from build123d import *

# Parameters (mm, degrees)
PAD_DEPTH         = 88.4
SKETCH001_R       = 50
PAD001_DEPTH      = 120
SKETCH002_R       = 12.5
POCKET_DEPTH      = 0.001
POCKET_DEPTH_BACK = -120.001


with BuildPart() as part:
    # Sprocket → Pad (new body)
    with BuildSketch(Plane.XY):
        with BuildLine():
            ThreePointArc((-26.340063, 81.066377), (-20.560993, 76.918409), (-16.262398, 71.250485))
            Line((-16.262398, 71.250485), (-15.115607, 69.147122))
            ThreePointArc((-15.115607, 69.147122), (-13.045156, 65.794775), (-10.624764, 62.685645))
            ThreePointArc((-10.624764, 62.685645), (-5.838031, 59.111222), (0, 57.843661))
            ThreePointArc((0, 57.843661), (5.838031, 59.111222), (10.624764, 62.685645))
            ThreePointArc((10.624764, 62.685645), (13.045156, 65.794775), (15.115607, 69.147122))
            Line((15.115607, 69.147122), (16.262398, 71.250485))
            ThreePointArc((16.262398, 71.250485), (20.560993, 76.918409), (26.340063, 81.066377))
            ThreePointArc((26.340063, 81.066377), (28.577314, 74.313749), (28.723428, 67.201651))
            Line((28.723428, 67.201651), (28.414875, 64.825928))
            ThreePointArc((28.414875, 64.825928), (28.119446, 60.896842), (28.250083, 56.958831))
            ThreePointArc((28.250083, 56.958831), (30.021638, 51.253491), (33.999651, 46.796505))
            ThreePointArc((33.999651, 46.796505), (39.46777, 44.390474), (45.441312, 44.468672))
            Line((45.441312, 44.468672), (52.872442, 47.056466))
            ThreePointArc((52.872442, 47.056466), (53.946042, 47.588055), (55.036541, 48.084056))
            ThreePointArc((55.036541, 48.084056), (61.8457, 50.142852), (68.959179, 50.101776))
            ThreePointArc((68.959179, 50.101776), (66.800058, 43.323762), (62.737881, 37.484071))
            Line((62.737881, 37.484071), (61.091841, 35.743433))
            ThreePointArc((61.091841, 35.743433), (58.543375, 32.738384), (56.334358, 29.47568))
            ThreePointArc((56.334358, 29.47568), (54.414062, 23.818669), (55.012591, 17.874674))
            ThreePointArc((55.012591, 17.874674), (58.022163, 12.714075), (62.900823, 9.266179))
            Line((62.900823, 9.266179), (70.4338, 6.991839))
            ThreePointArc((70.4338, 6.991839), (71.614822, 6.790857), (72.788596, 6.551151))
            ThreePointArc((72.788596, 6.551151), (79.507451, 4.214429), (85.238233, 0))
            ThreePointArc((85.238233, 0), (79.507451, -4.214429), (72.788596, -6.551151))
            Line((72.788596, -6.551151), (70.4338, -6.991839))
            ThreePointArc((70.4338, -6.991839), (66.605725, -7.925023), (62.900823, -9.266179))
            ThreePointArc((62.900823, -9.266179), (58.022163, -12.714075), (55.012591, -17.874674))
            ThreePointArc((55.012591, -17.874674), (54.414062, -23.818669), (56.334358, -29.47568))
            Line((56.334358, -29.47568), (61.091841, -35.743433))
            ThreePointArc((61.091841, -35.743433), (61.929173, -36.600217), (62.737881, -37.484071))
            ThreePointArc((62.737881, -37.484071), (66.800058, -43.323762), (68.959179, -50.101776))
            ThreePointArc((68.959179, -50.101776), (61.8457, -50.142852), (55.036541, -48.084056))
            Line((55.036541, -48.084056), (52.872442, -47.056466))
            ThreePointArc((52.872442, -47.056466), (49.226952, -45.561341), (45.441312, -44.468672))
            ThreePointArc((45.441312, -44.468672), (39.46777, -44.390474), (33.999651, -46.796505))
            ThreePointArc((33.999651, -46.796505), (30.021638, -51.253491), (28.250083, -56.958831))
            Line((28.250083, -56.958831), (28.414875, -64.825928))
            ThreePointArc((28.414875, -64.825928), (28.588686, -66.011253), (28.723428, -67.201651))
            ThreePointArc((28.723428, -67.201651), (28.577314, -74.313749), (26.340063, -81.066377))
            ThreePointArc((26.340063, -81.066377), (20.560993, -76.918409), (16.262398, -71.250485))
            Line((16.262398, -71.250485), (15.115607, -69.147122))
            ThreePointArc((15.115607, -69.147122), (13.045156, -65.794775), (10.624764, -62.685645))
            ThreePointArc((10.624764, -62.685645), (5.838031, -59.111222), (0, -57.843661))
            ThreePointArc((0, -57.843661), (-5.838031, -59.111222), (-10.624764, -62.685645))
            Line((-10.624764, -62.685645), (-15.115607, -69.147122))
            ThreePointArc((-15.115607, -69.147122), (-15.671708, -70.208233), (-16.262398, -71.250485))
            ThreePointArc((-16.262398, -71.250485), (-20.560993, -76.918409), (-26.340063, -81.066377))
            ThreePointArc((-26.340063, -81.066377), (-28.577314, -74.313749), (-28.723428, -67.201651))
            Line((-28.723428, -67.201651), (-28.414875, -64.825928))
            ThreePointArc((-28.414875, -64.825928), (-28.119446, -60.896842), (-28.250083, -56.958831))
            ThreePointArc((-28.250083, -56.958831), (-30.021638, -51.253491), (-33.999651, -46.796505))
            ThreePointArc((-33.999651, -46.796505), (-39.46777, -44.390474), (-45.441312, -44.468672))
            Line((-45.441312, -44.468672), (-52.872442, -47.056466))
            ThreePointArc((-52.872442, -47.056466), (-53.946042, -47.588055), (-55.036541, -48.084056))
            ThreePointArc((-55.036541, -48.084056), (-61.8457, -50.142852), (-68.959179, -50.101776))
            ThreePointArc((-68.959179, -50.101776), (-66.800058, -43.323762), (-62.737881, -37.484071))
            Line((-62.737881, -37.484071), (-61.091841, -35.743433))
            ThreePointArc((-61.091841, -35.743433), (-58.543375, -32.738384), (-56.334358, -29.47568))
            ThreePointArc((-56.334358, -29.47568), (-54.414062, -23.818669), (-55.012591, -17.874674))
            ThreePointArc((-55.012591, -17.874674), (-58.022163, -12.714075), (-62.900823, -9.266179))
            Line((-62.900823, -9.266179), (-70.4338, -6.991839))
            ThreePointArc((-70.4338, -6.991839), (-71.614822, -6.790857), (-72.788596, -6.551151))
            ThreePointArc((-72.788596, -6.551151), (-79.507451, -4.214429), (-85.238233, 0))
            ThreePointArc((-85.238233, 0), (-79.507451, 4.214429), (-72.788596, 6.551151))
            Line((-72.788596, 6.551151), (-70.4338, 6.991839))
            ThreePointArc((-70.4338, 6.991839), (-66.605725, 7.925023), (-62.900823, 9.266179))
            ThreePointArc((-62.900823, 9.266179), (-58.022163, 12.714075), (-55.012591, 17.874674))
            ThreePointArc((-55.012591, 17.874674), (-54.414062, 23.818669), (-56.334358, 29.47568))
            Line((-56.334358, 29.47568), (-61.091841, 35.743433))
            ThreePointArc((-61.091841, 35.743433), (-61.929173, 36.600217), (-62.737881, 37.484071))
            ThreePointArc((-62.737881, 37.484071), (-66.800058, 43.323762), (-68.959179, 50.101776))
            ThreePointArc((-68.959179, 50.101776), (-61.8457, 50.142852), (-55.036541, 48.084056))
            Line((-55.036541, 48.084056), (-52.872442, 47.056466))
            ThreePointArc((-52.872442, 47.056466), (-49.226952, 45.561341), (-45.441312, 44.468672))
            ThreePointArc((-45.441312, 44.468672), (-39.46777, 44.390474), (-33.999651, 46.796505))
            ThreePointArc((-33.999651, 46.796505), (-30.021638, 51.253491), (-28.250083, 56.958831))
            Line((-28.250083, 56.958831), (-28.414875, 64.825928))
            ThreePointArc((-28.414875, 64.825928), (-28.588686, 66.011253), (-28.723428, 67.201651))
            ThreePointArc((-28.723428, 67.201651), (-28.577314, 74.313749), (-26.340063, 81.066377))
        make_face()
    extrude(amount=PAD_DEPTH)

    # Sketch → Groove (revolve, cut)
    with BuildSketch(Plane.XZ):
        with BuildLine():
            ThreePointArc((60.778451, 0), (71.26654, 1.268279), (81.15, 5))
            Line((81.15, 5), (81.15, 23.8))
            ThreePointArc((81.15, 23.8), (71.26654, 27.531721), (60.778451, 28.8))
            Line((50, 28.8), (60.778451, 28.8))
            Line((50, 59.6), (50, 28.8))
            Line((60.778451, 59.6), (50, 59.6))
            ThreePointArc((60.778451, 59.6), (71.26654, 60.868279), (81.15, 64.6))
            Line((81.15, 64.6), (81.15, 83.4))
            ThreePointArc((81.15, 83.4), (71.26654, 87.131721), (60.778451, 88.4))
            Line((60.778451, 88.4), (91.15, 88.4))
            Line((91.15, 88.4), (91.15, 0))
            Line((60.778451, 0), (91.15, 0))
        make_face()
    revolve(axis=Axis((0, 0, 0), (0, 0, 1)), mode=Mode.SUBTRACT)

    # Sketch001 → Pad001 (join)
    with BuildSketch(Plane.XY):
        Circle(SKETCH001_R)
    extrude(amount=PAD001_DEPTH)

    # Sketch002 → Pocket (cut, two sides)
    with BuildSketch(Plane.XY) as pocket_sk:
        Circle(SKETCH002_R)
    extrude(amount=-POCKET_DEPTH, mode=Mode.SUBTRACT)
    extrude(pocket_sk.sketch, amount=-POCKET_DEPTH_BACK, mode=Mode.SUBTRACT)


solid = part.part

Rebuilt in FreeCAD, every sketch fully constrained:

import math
import FreeCAD as App
import Part
import Sketcher
Q = App.Units.Quantity

doc = App.newDocument("Part")
body = doc.addObject("PartDesign::Body", "Body")

sketch1 = doc.addObject("Sketcher::SketchObject", "Sketch")
body.addObject(sketch1)
sketch1.AttachmentSupport = (doc.XY_Plane, [""])
sketch1.MapMode = "FlatFace"
sketch1.addGeometry([
    Part.ArcOfCircle(Part.Circle(App.Vector(-37.201525, 59.834103, 0), App.Vector(0, 0, 1), 23.849126), math.radians(28.599999), math.radians(62.907788)),
    Part.ArcOfCircle(Part.Circle(App.Vector(-5.072939, 70.273315, 0), App.Vector(0, 0, 1), 23.849124), math.radians(153.092214), math.radians(187.400005)),
    Part.ArcOfCircle(Part.Circle(App.Vector(7.537194, 70.703192, 0), App.Vector(0, 0, 1), 36.429294), math.radians(-174.484282), math.radians(-170.715697)),
    Part.LineSegment(App.Vector(-28.414875, 64.825928, 0), App.Vector(-28.250083, 56.958831, 0)),
    Part.ArcOfCircle(Part.Circle(App.Vector(-42.274458, 58.185803, 0), App.Vector(0, 0, 1), 14.077945), math.radians(-54.00001), math.radians(-4.999995)),
    Part.ArcOfCircle(Part.Circle(App.Vector(-42.274462, 58.1858, 0), App.Vector(0, 0, 1), 14.077945), math.radians(-103.000006), math.radians(-53.999987)),
    Part.ArcOfCircle(Part.Circle(App.Vector(-37.246364, 79.964894, 0), App.Vector(0, 0, 1), 36.429919), math.radians(-115.400011), math.radians(-102.999999)),
    Part.LineSegment(App.Vector(-52.872442, 47.056466, 0), App.Vector(-55.036541, 48.084056, 0)),
    Part.ArcOfCircle(Part.Circle(App.Vector(-65.266268, 26.540303, 0), App.Vector(0, 0, 1), 23.849122), math.radians(64.599998), math.radians(98.907792)),
    Part.ArcOfCircle(Part.Circle(App.Vector(-45.409714, 53.870506, 0), App.Vector(0, 0, 1), 23.849122), math.radians(-170.907788), math.radians(-136.599996)),
    Part.ArcOfCircle(Part.Circle(App.Vector(-35.460525, 61.630381, 0), App.Vector(0, 0, 1), 36.429362), math.radians(-138.484281), math.radians(-134.715702)),
    Part.LineSegment(App.Vector(-61.091841, 35.743433, 0), App.Vector(-56.334358, 29.47568, 0)),
    Part.ArcOfCircle(Part.Circle(App.Vector(-68.401518, 22.225, 0), App.Vector(0, 0, 1), 14.077951), math.radians(-18.000001), math.radians(30.999994)),
    Part.ArcOfCircle(Part.Circle(App.Vector(-68.401515, 22.224998, 0), App.Vector(0, 0, 1), 14.077947), math.radians(-67.000002), math.radians(-17.999996)),
    Part.ArcOfCircle(Part.Circle(App.Vector(-77.135132, 42.800102, 0), App.Vector(0, 0, 1), 36.429927), math.radians(-79.400003), math.radians(-66.999995)),
    Part.LineSegment(App.Vector(-70.4338, 6.991839, 0), App.Vector(-72.788596, 6.551151, 0)),
    Part.ArcOfCircle(Part.Circle(App.Vector(-68.401518, -16.890997, 0), App.Vector(0, 0, 1), 23.849125), math.radians(100.599998), math.radians(134.907788)),
    Part.ArcOfCircle(Part.Circle(App.Vector(-68.401518, 16.890997, 0), App.Vector(0, 0, 1), 23.849125), math.radians(-134.907788), math.radians(-100.599998)),
    Part.ArcOfCircle(Part.Circle(App.Vector(-64.913511, 29.017284, 0), App.Vector(0, 0, 1), 36.429803), math.radians(-102.484265), math.radians(-98.715731)),
    Part.LineSegment(App.Vector(-70.4338, -6.991839, 0), App.Vector(-62.900823, -9.266179, 0)),
    Part.ArcOfCircle(Part.Circle(App.Vector(-68.401515, -22.224998, 0), App.Vector(0, 0, 1), 14.077947), math.radians(17.999996), math.radians(67.000002)),
    Part.ArcOfCircle(Part.Circle(App.Vector(-68.401518, -22.225, 0), App.Vector(0, 0, 1), 14.077951), math.radians(-30.999994), math.radians(18.000001)),
    Part.ArcOfCircle(Part.Circle(App.Vector(-87.560987, -10.71282, 0), App.Vector(0, 0, 1), 36.430032), math.radians(-43.399984), math.radians(-31.000011)),
    Part.LineSegment(App.Vector(-61.091841, -35.743433, 0), App.Vector(-62.737881, -37.484071, 0)),
    Part.ArcOfCircle(Part.Circle(App.Vector(-45.409714, -53.870506, 0), App.Vector(0, 0, 1), 23.849122), math.radians(136.599996), math.radians(170.907788)),
    Part.ArcOfCircle(Part.Circle(App.Vector(-65.266268, -26.540303, 0), App.Vector(0, 0, 1), 23.849122), math.radians(-98.907792), math.radians(-64.599998)),
    Part.ArcOfCircle(Part.Circle(App.Vector(-69.572054, -14.679758, 0), App.Vector(0, 0, 1), 36.429771), math.radians(-66.484263), math.radians(-62.715727)),
    Part.LineSegment(App.Vector(-52.872442, -47.056466, 0), App.Vector(-45.441312, -44.468672, 0)),
    Part.ArcOfCircle(Part.Circle(App.Vector(-42.274462, -58.1858, 0), App.Vector(0, 0, 1), 14.077945), math.radians(53.999987), math.radians(103.000006)),
    Part.ArcOfCircle(Part.Circle(App.Vector(-42.274458, -58.185803, 0), App.Vector(0, 0, 1), 14.077945), math.radians(4.999995), math.radians(54.00001)),
    Part.ArcOfCircle(Part.Circle(App.Vector(-64.541471, -60.13391, 0), App.Vector(0, 0, 1), 36.430015), math.radians(-7.399988), math.radians(4.999991)),
    Part.LineSegment(App.Vector(-28.414875, -64.825928, 0), App.Vector(-28.723428, -67.201651, 0)),
    Part.ArcOfCircle(Part.Circle(App.Vector(-5.072939, -70.273315, 0), App.Vector(0, 0, 1), 23.849124), math.radians(172.599995), math.radians(206.907786)),
    Part.ArcOfCircle(Part.Circle(App.Vector(-37.201525, -59.834103, 0), App.Vector(0, 0, 1), 23.849126), math.radians(-62.907788), math.radians(-28.599999)),
    Part.ArcOfCircle(Part.Circle(App.Vector(-47.656642, -52.769477, 0), App.Vector(0, 0, 1), 36.430018), math.radians(-30.484261), math.radians(-26.71575)),
    Part.LineSegment(App.Vector(-15.115607, -69.147122, 0), App.Vector(-10.624764, -62.685645, 0)),
    Part.ArcOfCircle(Part.Circle(App.Vector(0.000001, -71.921613, 0), App.Vector(0, 0, 1), 14.077952), math.radians(90.000003), math.radians(138.999998)),
    Part.ArcOfCircle(Part.Circle(App.Vector(-0.000001, -71.921613, 0), App.Vector(0, 0, 1), 14.077952), math.radians(41.000002), math.radians(89.999997)),
    Part.ArcOfCircle(Part.Circle(App.Vector(-16.869207, -86.585798, 0), App.Vector(0, 0, 1), 36.429874), math.radians(28.599984), math.radians(41.00001)),
    Part.LineSegment(App.Vector(15.115607, -69.147122, 0), App.Vector(16.262398, -71.250485, 0)),
    Part.ArcOfCircle(Part.Circle(App.Vector(37.201525, -59.834103, 0), App.Vector(0, 0, 1), 23.849126), math.radians(-151.400001), math.radians(-117.092212)),
    Part.ArcOfCircle(Part.Circle(App.Vector(5.072939, -70.273315, 0), App.Vector(0, 0, 1), 23.849124), math.radians(-26.907786), math.radians(7.400005)),
    Part.ArcOfCircle(Part.Circle(App.Vector(-7.537194, -70.703192, 0), App.Vector(0, 0, 1), 36.429294), math.radians(5.515718), math.radians(9.284303)),
    Part.LineSegment(App.Vector(28.414875, -64.825928, 0), App.Vector(28.250083, -56.958831, 0)),
    Part.ArcOfCircle(Part.Circle(App.Vector(42.274458, -58.185803, 0), App.Vector(0, 0, 1), 14.077945), math.radians(125.99999), math.radians(175.000005)),
    Part.ArcOfCircle(Part.Circle(App.Vector(42.274462, -58.1858, 0), App.Vector(0, 0, 1), 14.077945), math.radians(76.999994), math.radians(126.000013)),
    Part.ArcOfCircle(Part.Circle(App.Vector(37.246364, -79.964894, 0), App.Vector(0, 0, 1), 36.429919), math.radians(64.599989), math.radians(77.000001)),
    Part.LineSegment(App.Vector(52.872442, -47.056466, 0), App.Vector(55.036541, -48.084056, 0)),
    Part.ArcOfCircle(Part.Circle(App.Vector(65.266268, -26.540303, 0), App.Vector(0, 0, 1), 23.849122), math.radians(-115.400002), math.radians(-81.092208)),
    Part.ArcOfCircle(Part.Circle(App.Vector(45.409714, -53.870506, 0), App.Vector(0, 0, 1), 23.849122), math.radians(9.092212), math.radians(43.400004)),
    Part.ArcOfCircle(Part.Circle(App.Vector(35.460525, -61.630381, 0), App.Vector(0, 0, 1), 36.429362), math.radians(41.515719), math.radians(45.284298)),
    Part.LineSegment(App.Vector(61.091841, -35.743433, 0), App.Vector(56.334358, -29.47568, 0)),
    Part.ArcOfCircle(Part.Circle(App.Vector(68.401518, -22.225, 0), App.Vector(0, 0, 1), 14.077951), math.radians(161.999999), math.radians(210.999994)),
    Part.ArcOfCircle(Part.Circle(App.Vector(68.401515, -22.224998, 0), App.Vector(0, 0, 1), 14.077947), math.radians(112.999998), math.radians(162.000004)),
    Part.ArcOfCircle(Part.Circle(App.Vector(77.135132, -42.800102, 0), App.Vector(0, 0, 1), 36.429927), math.radians(100.599997), math.radians(113.000005)),
    Part.LineSegment(App.Vector(70.4338, -6.991839, 0), App.Vector(72.788596, -6.551151, 0)),
    Part.ArcOfCircle(Part.Circle(App.Vector(68.401518, 16.890997, 0), App.Vector(0, 0, 1), 23.849125), math.radians(-79.400002), math.radians(-45.092212)),
    Part.ArcOfCircle(Part.Circle(App.Vector(68.401518, -16.890997, 0), App.Vector(0, 0, 1), 23.849125), math.radians(45.092212), math.radians(79.400002)),
    Part.ArcOfCircle(Part.Circle(App.Vector(64.913511, -29.017284, 0), App.Vector(0, 0, 1), 36.429803), math.radians(77.515735), math.radians(81.284269)),
    Part.LineSegment(App.Vector(70.4338, 6.991839, 0), App.Vector(62.900823, 9.266179, 0)),
    Part.ArcOfCircle(Part.Circle(App.Vector(68.401515, 22.224998, 0), App.Vector(0, 0, 1), 14.077947), math.radians(-162.000004), math.radians(-112.999998)),
    Part.ArcOfCircle(Part.Circle(App.Vector(68.401518, 22.225, 0), App.Vector(0, 0, 1), 14.077951), math.radians(149.000006), math.radians(198.000001)),
    Part.ArcOfCircle(Part.Circle(App.Vector(87.560987, 10.71282, 0), App.Vector(0, 0, 1), 36.430032), math.radians(136.600016), math.radians(148.999989)),
    Part.LineSegment(App.Vector(61.091841, 35.743433, 0), App.Vector(62.737881, 37.484071, 0)),
    Part.ArcOfCircle(Part.Circle(App.Vector(45.409714, 53.870506, 0), App.Vector(0, 0, 1), 23.849122), math.radians(-43.400004), math.radians(-9.092212)),
    Part.ArcOfCircle(Part.Circle(App.Vector(65.266268, 26.540303, 0), App.Vector(0, 0, 1), 23.849122), math.radians(81.092208), math.radians(115.400002)),
    Part.ArcOfCircle(Part.Circle(App.Vector(69.572054, 14.679758, 0), App.Vector(0, 0, 1), 36.429771), math.radians(113.515737), math.radians(117.284273)),
    Part.LineSegment(App.Vector(52.872442, 47.056466, 0), App.Vector(45.441312, 44.468672, 0)),
    Part.ArcOfCircle(Part.Circle(App.Vector(42.274462, 58.1858, 0), App.Vector(0, 0, 1), 14.077945), math.radians(-126.000013), math.radians(-76.999994)),
    Part.ArcOfCircle(Part.Circle(App.Vector(42.274458, 58.185803, 0), App.Vector(0, 0, 1), 14.077945), math.radians(-175.000005), math.radians(-125.99999)),
    Part.ArcOfCircle(Part.Circle(App.Vector(64.541471, 60.13391, 0), App.Vector(0, 0, 1), 36.430015), math.radians(172.600012), math.radians(184.999991)),
    Part.LineSegment(App.Vector(28.414875, 64.825928, 0), App.Vector(28.723428, 67.201651, 0)),
    Part.ArcOfCircle(Part.Circle(App.Vector(5.072939, 70.273315, 0), App.Vector(0, 0, 1), 23.849124), math.radians(-7.400005), math.radians(26.907786)),
    Part.ArcOfCircle(Part.Circle(App.Vector(37.201525, 59.834103, 0), App.Vector(0, 0, 1), 23.849126), math.radians(117.092212), math.radians(151.400001)),
    Part.LineSegment(App.Vector(16.262398, 71.250485, 0), App.Vector(15.115607, 69.147122, 0)),
    Part.ArcOfCircle(Part.Circle(App.Vector(-16.869207, 86.585798, 0), App.Vector(0, 0, 1), 36.429874), math.radians(-41.00001), math.radians(-28.599984)),
    Part.ArcOfCircle(Part.Circle(App.Vector(-0.000001, 71.921613, 0), App.Vector(0, 0, 1), 14.077952), math.radians(-89.999997), math.radians(-41.000002)),
    Part.ArcOfCircle(Part.Circle(App.Vector(0.000001, 71.921613, 0), App.Vector(0, 0, 1), 14.077952), math.radians(-138.999998), math.radians(-90.000003)),
    Part.ArcOfCircle(Part.Circle(App.Vector(16.869207, 86.585798, 0), App.Vector(0, 0, 1), 36.429874), math.radians(-151.400016), math.radians(-138.99999)),
    Part.LineSegment(App.Vector(-15.115607, 69.147122, 0), App.Vector(-16.262398, 71.250485, 0)),
], False)
sketch1.addConstraint([
    Sketcher.Constraint("Coincident", 0, 2, 1, 1),
    Sketcher.Constraint("Coincident", 1, 2, 2, 1),
    Sketcher.Constraint("Coincident", 2, 2, 3, 1),
    Sketcher.Constraint("Coincident", 3, 2, 4, 2),
    Sketcher.Constraint("Coincident", 4, 1, 5, 2),
    Sketcher.Constraint("Coincident", 5, 1, 6, 2),
    Sketcher.Constraint("Coincident", 6, 1, 7, 1),
    Sketcher.Constraint("Coincident", 7, 2, 8, 1),
    Sketcher.Constraint("Coincident", 8, 2, 9, 1),
    Sketcher.Constraint("Coincident", 9, 2, 10, 1),
    Sketcher.Constraint("Coincident", 10, 2, 11, 1),
    Sketcher.Constraint("Coincident", 11, 2, 12, 2),
    Sketcher.Constraint("Coincident", 12, 1, 13, 2),
    Sketcher.Constraint("Coincident", 13, 1, 14, 2),
    Sketcher.Constraint("Coincident", 14, 1, 15, 1),
    Sketcher.Constraint("Coincident", 15, 2, 16, 1),
    Sketcher.Constraint("Coincident", 16, 2, 17, 1),
    Sketcher.Constraint("Coincident", 17, 2, 18, 1),
    Sketcher.Constraint("Coincident", 18, 2, 19, 1),
    Sketcher.Constraint("Coincident", 19, 2, 20, 2),
    Sketcher.Constraint("Coincident", 20, 1, 21, 2),
    Sketcher.Constraint("Coincident", 21, 1, 22, 2),
    Sketcher.Constraint("Coincident", 22, 1, 23, 1),
    Sketcher.Constraint("Coincident", 23, 2, 24, 1),
    Sketcher.Constraint("Coincident", 24, 2, 25, 1),
    Sketcher.Constraint("Coincident", 25, 2, 26, 1),
    Sketcher.Constraint("Coincident", 26, 2, 27, 1),
    Sketcher.Constraint("Coincident", 27, 2, 28, 2),
    Sketcher.Constraint("Coincident", 28, 1, 29, 2),
    Sketcher.Constraint("Coincident", 29, 1, 30, 2),
    Sketcher.Constraint("Coincident", 30, 1, 31, 1),
    Sketcher.Constraint("Coincident", 31, 2, 32, 1),
    Sketcher.Constraint("Coincident", 32, 2, 33, 1),
    Sketcher.Constraint("Coincident", 33, 2, 34, 1),
    Sketcher.Constraint("Coincident", 34, 2, 35, 1),
    Sketcher.Constraint("Coincident", 35, 2, 36, 2),
    Sketcher.Constraint("Coincident", 36, 1, 37, 2),
    Sketcher.Constraint("Coincident", 37, 1, 38, 2),
    Sketcher.Constraint("Coincident", 38, 1, 39, 1),
    Sketcher.Constraint("Coincident", 39, 2, 40, 1),
    Sketcher.Constraint("Coincident", 40, 2, 41, 1),
    Sketcher.Constraint("Coincident", 41, 2, 42, 1),
    Sketcher.Constraint("Coincident", 42, 2, 43, 1),
    Sketcher.Constraint("Coincident", 43, 2, 44, 2),
    Sketcher.Constraint("Coincident", 44, 1, 45, 2),
    Sketcher.Constraint("Coincident", 45, 1, 46, 2),
    Sketcher.Constraint("Coincident", 46, 1, 47, 1),
    Sketcher.Constraint("Coincident", 47, 2, 48, 1),
    Sketcher.Constraint("Coincident", 48, 2, 49, 1),
    Sketcher.Constraint("Coincident", 49, 2, 50, 1),
    Sketcher.Constraint("Coincident", 50, 2, 51, 1),
    Sketcher.Constraint("Coincident", 51, 2, 52, 2),
    Sketcher.Constraint("Coincident", 52, 1, 53, 2),
    Sketcher.Constraint("Coincident", 53, 1, 54, 2),
    Sketcher.Constraint("Coincident", 54, 1, 55, 1),
    Sketcher.Constraint("Coincident", 55, 2, 56, 1),
    Sketcher.Constraint("Coincident", 56, 2, 57, 1),
    Sketcher.Constraint("Coincident", 57, 2, 58, 1),
    Sketcher.Constraint("Coincident", 58, 2, 59, 1),
    Sketcher.Constraint("Coincident", 59, 2, 60, 2),
    Sketcher.Constraint("Coincident", 60, 1, 61, 2),
    Sketcher.Constraint("Coincident", 61, 1, 62, 2),
    Sketcher.Constraint("Coincident", 62, 1, 63, 1),
    Sketcher.Constraint("Coincident", 63, 2, 64, 1),
    Sketcher.Constraint("Coincident", 64, 2, 65, 1),
    Sketcher.Constraint("Coincident", 65, 2, 66, 1),
    Sketcher.Constraint("Coincident", 66, 2, 67, 1),
    Sketcher.Constraint("Coincident", 67, 2, 68, 2),
    Sketcher.Constraint("Coincident", 68, 1, 69, 2),
    Sketcher.Constraint("Coincident", 69, 1, 70, 2),
    Sketcher.Constraint("Coincident", 70, 1, 71, 1),
    Sketcher.Constraint("Coincident", 71, 2, 72, 1),
    Sketcher.Constraint("Coincident", 72, 2, 73, 1),
    Sketcher.Constraint("Coincident", 73, 2, 74, 1),
    Sketcher.Constraint("Coincident", 74, 2, 75, 2),
    Sketcher.Constraint("Coincident", 75, 1, 76, 2),
    Sketcher.Constraint("Coincident", 76, 1, 77, 2),
    Sketcher.Constraint("Coincident", 77, 1, 78, 2),
    Sketcher.Constraint("Coincident", 78, 1, 79, 1),
    Sketcher.Constraint("Coincident", 79, 2, 0, 1),
    Sketcher.Constraint("Coincident", 5, 3, 4, 3),
    Sketcher.Constraint("Coincident", 13, 3, 12, 3),
    Sketcher.Constraint("Coincident", 21, 3, 20, 3),
    Sketcher.Constraint("Coincident", 29, 3, 28, 3),
    Sketcher.Constraint("Coincident", 37, 3, 36, 3),
    Sketcher.Constraint("Coincident", 45, 3, 44, 3),
    Sketcher.Constraint("Coincident", 53, 3, 52, 3),
    Sketcher.Constraint("Coincident", 61, 3, 60, 3),
    Sketcher.Constraint("Coincident", 69, 3, 68, 3),
    Sketcher.Constraint("Coincident", 77, 3, 76, 3),
    Sketcher.Constraint("PointOnObject", 36, 3, -2),
    Sketcher.Constraint("PointOnObject", 76, 3, -2),
    Sketcher.Constraint("PointOnObject", 16, 2, -1),
    Sketcher.Constraint("PointOnObject", 36, 1, -2),
    Sketcher.Constraint("PointOnObject", 56, 2, -1),
    Sketcher.Constraint("PointOnObject", 76, 1, -2),
    Sketcher.Constraint("Radius", 6, Q("36.429919 mm")),
    Sketcher.Constraint("Radius", 8, Q("23.849122 mm")),
    Sketcher.Constraint("Radius", 12, Q("14.077951 mm")),
    Sketcher.Constraint("Radius", 21, Q("14.077951 mm")),
    Sketcher.Constraint("Radius", 25, Q("23.849122 mm")),
    Sketcher.Constraint("Radius", 26, Q("36.429771 mm")),
    Sketcher.Constraint("Radius", 34, Q("36.430018 mm")),
    Sketcher.Constraint("Radius", 36, Q("14.077952 mm")),
    Sketcher.Constraint("Radius", 46, Q("36.429919 mm")),
    Sketcher.Constraint("Radius", 48, Q("23.849122 mm")),
    Sketcher.Constraint("Radius", 52, Q("14.077951 mm")),
    Sketcher.Constraint("Radius", 61, Q("14.077951 mm")),
    Sketcher.Constraint("Radius", 65, Q("23.849122 mm")),
    Sketcher.Constraint("Radius", 66, Q("36.429771 mm")),
    Sketcher.Constraint("Radius", 76, Q("14.077952 mm")),
    Sketcher.Constraint("DistanceY", -1, 1, 12, 3, Q("22.225 mm")),
    Sketcher.Constraint("DistanceY", 21, 3, -1, 1, Q("22.225 mm")),
    Sketcher.Constraint("DistanceY", 52, 3, -1, 1, Q("22.225 mm")),
    Sketcher.Constraint("DistanceY", -1, 1, 61, 3, Q("22.225 mm")),
    Sketcher.Constraint("Radius", 0, Q("23.849126 mm")),
    Sketcher.Constraint("Radius", 1, Q("23.849124 mm")),
    Sketcher.Constraint("Radius", 2, Q("36.429294 mm")),
    Sketcher.Constraint("Radius", 4, Q("14.077945 mm")),
    Sketcher.Constraint("Radius", 9, Q("23.849122 mm")),
    Sketcher.Constraint("Radius", 10, Q("36.429362 mm")),
    Sketcher.Constraint("Radius", 14, Q("36.429927 mm")),
    Sketcher.Constraint("Radius", 16, Q("23.849125 mm")),
    Sketcher.Constraint("Radius", 17, Q("23.849125 mm")),
    Sketcher.Constraint("Radius", 18, Q("36.429803 mm")),
    Sketcher.Constraint("Radius", 22, Q("36.430032 mm")),
    Sketcher.Constraint("Radius", 24, Q("23.849122 mm")),
    Sketcher.Constraint("Radius", 28, Q("14.077945 mm")),
    Sketcher.Constraint("Radius", 30, Q("36.430015 mm")),
    Sketcher.Constraint("Radius", 32, Q("23.849124 mm")),
    Sketcher.Constraint("Radius", 33, Q("23.849126 mm")),
    Sketcher.Constraint("Radius", 38, Q("36.429874 mm")),
    Sketcher.Constraint("Radius", 40, Q("23.849126 mm")),
    Sketcher.Constraint("Radius", 41, Q("23.849124 mm")),
    Sketcher.Constraint("Radius", 42, Q("36.429294 mm")),
    Sketcher.Constraint("Radius", 44, Q("14.077945 mm")),
    Sketcher.Constraint("Radius", 49, Q("23.849122 mm")),
    Sketcher.Constraint("Radius", 50, Q("36.429362 mm")),
    Sketcher.Constraint("Radius", 54, Q("36.429927 mm")),
    Sketcher.Constraint("Radius", 56, Q("23.849125 mm")),
    Sketcher.Constraint("Radius", 57, Q("23.849125 mm")),
    Sketcher.Constraint("Radius", 58, Q("36.429803 mm")),
    Sketcher.Constraint("Radius", 62, Q("36.430032 mm")),
    Sketcher.Constraint("Radius", 64, Q("23.849122 mm")),
    Sketcher.Constraint("Radius", 68, Q("14.077945 mm")),
    Sketcher.Constraint("Radius", 70, Q("36.430015 mm")),
    Sketcher.Constraint("Radius", 72, Q("23.849124 mm")),
    Sketcher.Constraint("Radius", 73, Q("23.849126 mm")),
    Sketcher.Constraint("Radius", 75, Q("36.429874 mm")),
    Sketcher.Constraint("Radius", 78, Q("36.429874 mm")),
    Sketcher.Constraint("DistanceY", -1, 1, 5, 3, Q("58.1858 mm")),
    Sketcher.Constraint("DistanceY", -1, 1, 14, 3, Q("42.800102 mm")),
    Sketcher.Constraint("DistanceY", 28, 3, -1, 1, Q("58.1858 mm")),
    Sketcher.Constraint("DistanceY", 45, 3, -1, 1, Q("58.1858 mm")),
    Sketcher.Constraint("DistanceY", 54, 3, -1, 1, Q("42.800102 mm")),
    Sketcher.Constraint("DistanceY", -1, 1, 68, 3, Q("58.1858 mm")),
    Sketcher.Constraint("DistanceX", 14, 1, -1, 1, Q("70.4338 mm")),
    Sketcher.Constraint("DistanceX", 18, 2, -1, 1, Q("70.4338 mm")),
    Sketcher.Constraint("DistanceX", -1, 1, 39, 2, Q("16.262398 mm")),
    Sketcher.Constraint("DistanceX", -1, 1, 54, 1, Q("70.4338 mm")),
    Sketcher.Constraint("DistanceX", -1, 1, 58, 2, Q("70.4338 mm")),
    Sketcher.Constraint("DistanceX", 79, 2, -1, 1, Q("16.262398 mm")),
    Sketcher.Constraint("Distance", 35, Q("7.868822 mm")),
    Sketcher.Constraint("DistanceX", 1, 3, -1, 1, Q("5.072939 mm")),
    Sketcher.Constraint("DistanceY", -1, 1, 2, 3, Q("70.703192 mm")),
    Sketcher.Constraint("DistanceY", -1, 1, 10, 3, Q("61.630381 mm")),
    Sketcher.Constraint("DistanceX", 12, 3, -1, 1, Q("68.401518 mm")),
    Sketcher.Constraint("DistanceX", 18, 3, -1, 1, Q("64.913511 mm")),
    Sketcher.Constraint("DistanceX", 21, 3, -1, 1, Q("68.401518 mm")),
    Sketcher.Constraint("DistanceY", 22, 3, -1, 1, Q("10.71282 mm")),
    Sketcher.Constraint("DistanceY", 26, 3, -1, 1, Q("14.679758 mm")),
    Sketcher.Constraint("DistanceX", 30, 3, -1, 1, Q("64.541471 mm")),
    Sketcher.Constraint("DistanceY", 30, 3, -1, 1, Q("60.13391 mm")),
    Sketcher.Constraint("DistanceX", 32, 3, -1, 1, Q("5.072939 mm")),
    Sketcher.Constraint("DistanceX", -1, 1, 41, 3, Q("5.072939 mm")),
    Sketcher.Constraint("DistanceY", 42, 3, -1, 1, Q("70.703192 mm")),
    Sketcher.Constraint("DistanceY", 50, 3, -1, 1, Q("61.630381 mm")),
    Sketcher.Constraint("DistanceX", -1, 1, 52, 3, Q("68.401518 mm")),
    Sketcher.Constraint("DistanceX", -1, 1, 58, 3, Q("64.913511 mm")),
    Sketcher.Constraint("DistanceX", -1, 1, 61, 3, Q("68.401518 mm")),
    Sketcher.Constraint("DistanceY", -1, 1, 62, 3, Q("10.71282 mm")),
    Sketcher.Constraint("DistanceY", -1, 1, 66, 3, Q("14.679758 mm")),
    Sketcher.Constraint("DistanceX", -1, 1, 70, 3, Q("64.541471 mm")),
    Sketcher.Constraint("DistanceY", -1, 1, 70, 3, Q("60.13391 mm")),
    Sketcher.Constraint("DistanceX", -1, 1, 72, 3, Q("5.072939 mm")),
    Sketcher.Constraint("DistanceY", -1, 1, 1, 2, Q("67.201651 mm")),
    Sketcher.Constraint("DistanceY", -1, 1, 3, 2, Q("56.958831 mm")),
    Sketcher.Constraint("DistanceX", 4, 1, -1, 1, Q("33.999651 mm")),
    Sketcher.Constraint("DistanceY", -1, 1, 5, 1, Q("44.468672 mm")),
    Sketcher.Constraint("DistanceX", 6, 1, -1, 1, Q("52.872442 mm")),
    Sketcher.Constraint("DistanceX", 7, 2, -1, 1, Q("55.036541 mm")),
    Sketcher.Constraint("DistanceX", 8, 2, -1, 1, Q("68.959179 mm")),
    Sketcher.Constraint("DistanceX", 9, 2, -1, 1, Q("62.737881 mm")),
    Sketcher.Constraint("DistanceY", -1, 1, 9, 2, Q("37.484071 mm")),
    Sketcher.Constraint("DistanceX", 10, 2, -1, 1, Q("61.091841 mm")),
    Sketcher.Constraint("DistanceX", 11, 2, -1, 1, Q("56.334358 mm")),
    Sketcher.Constraint("DistanceX", 12, 1, -1, 1, Q("55.012591 mm")),
    Sketcher.Constraint("DistanceY", -1, 1, 13, 1, Q("9.266179 mm")),
    Sketcher.Constraint("DistanceY", -1, 1, 15, 2, Q("6.551151 mm")),
    Sketcher.Constraint("DistanceY", 17, 2, -1, 1, Q("6.551151 mm")),
    Sketcher.Constraint("DistanceY", 18, 2, -1, 1, Q("6.991839 mm")),
    Sketcher.Constraint("DistanceY", 19, 2, -1, 1, Q("9.266179 mm")),
    Sketcher.Constraint("DistanceX", 20, 1, -1, 1, Q("55.012591 mm")),
    Sketcher.Constraint("DistanceY", 21, 1, -1, 1, Q("29.47568 mm")),
    Sketcher.Constraint("DistanceX", 22, 1, -1, 1, Q("61.091841 mm")),
    Sketcher.Constraint("DistanceX", 23, 2, -1, 1, Q("62.737881 mm")),
    Sketcher.Constraint("DistanceY", 23, 2, -1, 1, Q("37.484071 mm")),
    Sketcher.Constraint("DistanceX", 24, 2, -1, 1, Q("68.959179 mm")),
    Sketcher.Constraint("DistanceX", 25, 2, -1, 1, Q("55.036541 mm")),
    Sketcher.Constraint("DistanceY", 27, 2, -1, 1, Q("44.468672 mm")),
    Sketcher.Constraint("DistanceX", 28, 1, -1, 1, Q("33.999651 mm")),
    Sketcher.Constraint("DistanceY", 29, 1, -1, 1, Q("56.958831 mm")),
    Sketcher.Constraint("DistanceY", 30, 1, -1, 1, Q("64.825928 mm")),
    Sketcher.Constraint("DistanceY", 31, 2, -1, 1, Q("67.201651 mm")),
    Sketcher.Constraint("DistanceY", 34, 2, -1, 1, Q("69.147122 mm")),
    Sketcher.Constraint("DistanceY", 36, 1, -1, 1, Q("57.843661 mm")),
    Sketcher.Constraint("DistanceY", 38, 1, -1, 1, Q("69.147122 mm")),
    Sketcher.Constraint("DistanceY", 41, 2, -1, 1, Q("67.201651 mm")),
    Sketcher.Constraint("DistanceY", 43, 2, -1, 1, Q("56.958831 mm")),
    Sketcher.Constraint("DistanceX", -1, 1, 44, 1, Q("33.999651 mm")),
    Sketcher.Constraint("DistanceY", 45, 1, -1, 1, Q("44.468672 mm")),
    Sketcher.Constraint("DistanceX", -1, 1, 46, 1, Q("52.872442 mm")),
    Sketcher.Constraint("DistanceX", -1, 1, 47, 2, Q("55.036541 mm")),
    Sketcher.Constraint("DistanceX", -1, 1, 48, 2, Q("68.959179 mm")),
    Sketcher.Constraint("DistanceX", -1, 1, 49, 2, Q("62.737881 mm")),
    Sketcher.Constraint("DistanceY", 49, 2, -1, 1, Q("37.484071 mm")),
    Sketcher.Constraint("DistanceX", -1, 1, 50, 2, Q("61.091841 mm")),
    Sketcher.Constraint("DistanceX", -1, 1, 51, 2, Q("56.334358 mm")),
    Sketcher.Constraint("DistanceX", -1, 1, 52, 1, Q("55.012591 mm")),
    Sketcher.Constraint("DistanceY", 53, 1, -1, 1, Q("9.266179 mm")),
    Sketcher.Constraint("DistanceY", 55, 2, -1, 1, Q("6.551151 mm")),
    Sketcher.Constraint("DistanceY", -1, 1, 57, 2, Q("6.551151 mm")),
    Sketcher.Constraint("DistanceY", -1, 1, 58, 2, Q("6.991839 mm")),
    Sketcher.Constraint("DistanceY", -1, 1, 59, 2, Q("9.266179 mm")),
    Sketcher.Constraint("DistanceX", -1, 1, 60, 1, Q("55.012591 mm")),
    Sketcher.Constraint("DistanceY", -1, 1, 61, 1, Q("29.47568 mm")),
    Sketcher.Constraint("DistanceX", -1, 1, 62, 1, Q("61.091841 mm")),
    Sketcher.Constraint("DistanceX", -1, 1, 63, 2, Q("62.737881 mm")),
    Sketcher.Constraint("DistanceY", -1, 1, 63, 2, Q("37.484071 mm")),
    Sketcher.Constraint("DistanceX", -1, 1, 64, 2, Q("68.959179 mm")),
    Sketcher.Constraint("DistanceX", -1, 1, 65, 2, Q("55.036541 mm")),
    Sketcher.Constraint("DistanceY", -1, 1, 67, 2, Q("44.468672 mm")),
    Sketcher.Constraint("DistanceX", -1, 1, 68, 1, Q("33.999651 mm")),
    Sketcher.Constraint("DistanceY", -1, 1, 69, 1, Q("56.958831 mm")),
    Sketcher.Constraint("DistanceY", -1, 1, 70, 1, Q("64.825928 mm")),
    Sketcher.Constraint("DistanceY", -1, 1, 71, 2, Q("67.201651 mm")),
    Sketcher.Constraint("DistanceY", -1, 1, 74, 2, Q("69.147122 mm")),
    Sketcher.Constraint("DistanceY", -1, 1, 76, 1, Q("57.843661 mm")),
    Sketcher.Constraint("DistanceY", -1, 1, 78, 1, Q("69.147122 mm")),
    Sketcher.Constraint("Distance", 3, Q("7.868823 mm")),
    Sketcher.Constraint("Distance", 7, Q("2.395676 mm")),
    Sketcher.Constraint("Distance", 15, Q("2.395677 mm")),
    Sketcher.Constraint("Distance", 27, Q("7.868823 mm")),
    Sketcher.Constraint("Distance", 31, Q("2.395676 mm")),
    Sketcher.Constraint("Distance", 39, Q("2.395676 mm")),
    Sketcher.Constraint("Distance", 43, Q("7.868823 mm")),
    Sketcher.Constraint("Distance", 47, Q("2.395676 mm")),
    Sketcher.Constraint("Distance", 55, Q("2.395677 mm")),
    Sketcher.Constraint("Distance", 67, Q("7.868823 mm")),
    Sketcher.Constraint("Distance", 71, Q("2.395676 mm")),
    Sketcher.Constraint("Distance", 74, Q("2.395676 mm")),
    Sketcher.Constraint("Distance", 79, Q("2.395676 mm")),
    Sketcher.Constraint("DistanceX", 0, 3, -1, 1, Q("37.201525 mm")),
    Sketcher.Constraint("DistanceY", -1, 1, 0, 3, Q("59.834103 mm")),
    Sketcher.Constraint("DistanceY", -1, 1, 1, 3, Q("70.273315 mm")),
    Sketcher.Constraint("DistanceX", 4, 3, -1, 1, Q("42.274458 mm")),
    Sketcher.Constraint("DistanceX", 6, 3, -1, 1, Q("37.246364 mm")),
    Sketcher.Constraint("DistanceX", 8, 3, -1, 1, Q("65.266268 mm")),
    Sketcher.Constraint("DistanceX", 16, 3, -1, 1, Q("68.401518 mm")),
    Sketcher.Constraint("DistanceX", 24, 3, -1, 1, Q("45.409714 mm")),
    Sketcher.Constraint("DistanceX", 25, 3, -1, 1, Q("65.266268 mm")),
    Sketcher.Constraint("DistanceX", 33, 3, -1, 1, Q("37.201525 mm")),
    Sketcher.Constraint("DistanceY", 33, 3, -1, 1, Q("59.834103 mm")),
    Sketcher.Constraint("DistanceX", 34, 3, -1, 1, Q("47.656642 mm")),
    Sketcher.Constraint("DistanceY", 34, 3, -1, 1, Q("52.769477 mm")),
    Sketcher.Constraint("DistanceX", 38, 3, -1, 1, Q("16.869207 mm")),
    Sketcher.Constraint("DistanceX", -1, 1, 40, 3, Q("37.201525 mm")),
    Sketcher.Constraint("DistanceY", 41, 3, -1, 1, Q("70.273315 mm")),
    Sketcher.Constraint("DistanceX", -1, 1, 44, 3, Q("42.274458 mm")),
    Sketcher.Constraint("DistanceX", -1, 1, 46, 3, Q("37.246364 mm")),
    Sketcher.Constraint("DistanceX", -1, 1, 48, 3, Q("65.266268 mm")),
    Sketcher.Constraint("DistanceX", -1, 1, 56, 3, Q("68.401518 mm")),
    Sketcher.Constraint("DistanceX", -1, 1, 64, 3, Q("45.409714 mm")),
    Sketcher.Constraint("DistanceX", -1, 1, 65, 3, Q("65.266268 mm")),
    Sketcher.Constraint("DistanceX", -1, 1, 73, 3, Q("37.201525 mm")),
    Sketcher.Constraint("DistanceY", -1, 1, 73, 3, Q("59.834103 mm")),
    Sketcher.Constraint("DistanceX", 75, 3, -1, 1, Q("16.869207 mm")),
    Sketcher.Constraint("DistanceX", -1, 1, 37, 1, Q("10.624764 mm")),
    Sketcher.Constraint("DistanceX", -1, 1, 75, 1, Q("10.624764 mm")),
    Sketcher.Constraint("DistanceX", 77, 1, -1, 1, Q("10.624764 mm")),
])
pad1 = doc.addObject("PartDesign::Pad", "Pad")
body.addObject(pad1)
pad1.Profile = sketch1
pad1.Length = 88.4

sketch2 = doc.addObject("Sketcher::SketchObject", "Sketch001")
body.addObject(sketch2)
sketch2.AttachmentSupport = (doc.XZ_Plane, [""])
sketch2.MapMode = "FlatFace"
sketch2.addGeometry([
    Part.ArcOfCircle(Part.Circle(App.Vector(61, 44, 0), App.Vector(0, 0, 1), 44), math.radians(-90), math.radians(-62)),
    Part.LineSegment(App.Vector(61, 0, 0), App.Vector(91, 0, 0)),
    Part.LineSegment(App.Vector(91, 0, 0), App.Vector(91, 88, 0)),
    Part.LineSegment(App.Vector(91, 88, 0), App.Vector(61, 88, 0)),
    Part.ArcOfCircle(Part.Circle(App.Vector(61, 44, 0), App.Vector(0, 0, 1), 44), math.radians(62), math.radians(90)),
    Part.LineSegment(App.Vector(81, 83, 0), App.Vector(81, 65, 0)),
    Part.ArcOfCircle(Part.Circle(App.Vector(61, 104, 0), App.Vector(0, 0, 1), 44), math.radians(-90), math.radians(-62)),
    Part.LineSegment(App.Vector(61, 60, 0), App.Vector(50, 60, 0)),
    Part.LineSegment(App.Vector(50, 60, 0), App.Vector(50, 29, 0)),
    Part.LineSegment(App.Vector(50, 29, 0), App.Vector(61, 29, 0)),
    Part.ArcOfCircle(Part.Circle(App.Vector(61, -15, 0), App.Vector(0, 0, 1), 44), math.radians(62), math.radians(90)),
    Part.LineSegment(App.Vector(81, 24, 0), App.Vector(81, 5, 0)),
], False)
sketch2.addConstraint([
    Sketcher.Constraint("Tangent", 0, 1, 1, 1),
    Sketcher.Constraint("Coincident", 1, 2, 2, 1),
    Sketcher.Constraint("Coincident", 2, 2, 3, 1),
    Sketcher.Constraint("Tangent", 3, 2, 4, 2),
    Sketcher.Constraint("Coincident", 4, 1, 5, 1),
    Sketcher.Constraint("Coincident", 5, 2, 6, 2),
    Sketcher.Constraint("Tangent", 6, 1, 7, 1),
    Sketcher.Constraint("Coincident", 7, 2, 8, 1),
    Sketcher.Constraint("Coincident", 8, 2, 9, 1),
    Sketcher.Constraint("Tangent", 9, 2, 10, 2),
    Sketcher.Constraint("Coincident", 10, 1, 11, 1),
    Sketcher.Constraint("Coincident", 11, 2, 0, 2),
    Sketcher.Constraint("Horizontal", 1),
    Sketcher.Constraint("Vertical", 2),
    Sketcher.Constraint("Horizontal", 3),
    Sketcher.Constraint("Vertical", 5),
    Sketcher.Constraint("Horizontal", 7),
    Sketcher.Constraint("Vertical", 8),
    Sketcher.Constraint("Horizontal", 9),
    Sketcher.Constraint("Vertical", 11),
    Sketcher.Constraint("Equal", 0, 4),
    Sketcher.Constraint("Equal", 4, 6),
    Sketcher.Constraint("Equal", 6, 10),
    Sketcher.Constraint("PointOnObject", 0, 1, -1),
    Sketcher.Constraint("Vertical", 0, 3, 4, 3),
    Sketcher.Constraint("Vertical", 4, 3, 6, 3),
    Sketcher.Constraint("Vertical", 6, 3, 10, 3),
    Sketcher.Constraint("Vertical", 5, 2, 10, 1),
    Sketcher.Constraint("Equal", 5, 11),
    Sketcher.Constraint("DistanceY", 2, 1, 2, 2, Q("88.4 mm")),
    Sketcher.Constraint("DistanceY", 5, 2, 5, 1, Q("18.8 mm")),
    Sketcher.Constraint("DistanceY", 8, 2, 8, 1, Q("30.8 mm")),
    Sketcher.Constraint("DistanceX", -1, 1, 7, 2, Q("50 mm")),
    Sketcher.Constraint("DistanceX", 4, 1, 2, 2, Q("10 mm")),
    Sketcher.Constraint("DistanceX", -1, 1, 1, 2, Q("91.15 mm")),
    Sketcher.Constraint("Radius", 0, Q("44.000005 mm")),
])
groove = doc.addObject("PartDesign::Groove", "Groove")
body.addObject(groove)
groove.Profile = sketch2
groove.ReferenceAxis = (sketch2, ["V_Axis"])
groove.Angle = 360

sketch3 = doc.addObject("Sketcher::SketchObject", "Sketch002")
body.addObject(sketch3)
sketch3.AttachmentSupport = (doc.XY_Plane, [""])
sketch3.MapMode = "FlatFace"
sketch3.addGeometry(Part.Circle(App.Vector(0, 0, 0), App.Vector(0, 0, 1), 50), False)
sketch3.addConstraint([
    Sketcher.Constraint("Coincident", 0, 3, -1, 1),
    Sketcher.Constraint("Diameter", 0, Q("100 mm")),
])
pad2 = doc.addObject("PartDesign::Pad", "Pad001")
body.addObject(pad2)
pad2.Profile = sketch3
pad2.Length = 120

sketch4 = doc.addObject("Sketcher::SketchObject", "Sketch003")
body.addObject(sketch4)
sketch4.AttachmentSupport = (doc.XY_Plane, [""])
sketch4.MapMode = "FlatFace"
sketch4.addGeometry(Part.Circle(App.Vector(0, 0, 0), App.Vector(0, 0, 1), 12), False)
sketch4.addConstraint([
    Sketcher.Constraint("Coincident", 0, 3, -1, 1),
    Sketcher.Constraint("Diameter", 0, Q("25 mm")),
])
pocket1 = doc.addObject("PartDesign::Pocket", "Pocket")
body.addObject(pocket1)
pocket1.Profile = sketch4
pocket1.Type = "ThroughAll"
pocket1.Midplane = True

doc.recompute()
